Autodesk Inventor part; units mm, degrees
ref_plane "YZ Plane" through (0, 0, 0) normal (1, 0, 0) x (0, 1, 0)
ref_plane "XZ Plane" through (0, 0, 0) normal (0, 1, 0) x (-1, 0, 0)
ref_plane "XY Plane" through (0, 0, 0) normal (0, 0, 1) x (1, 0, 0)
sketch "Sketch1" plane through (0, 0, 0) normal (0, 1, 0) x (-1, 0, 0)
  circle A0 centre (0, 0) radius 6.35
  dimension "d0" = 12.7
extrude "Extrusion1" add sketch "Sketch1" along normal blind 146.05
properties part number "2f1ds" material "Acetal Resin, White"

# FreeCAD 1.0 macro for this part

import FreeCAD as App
import Part
import Sketcher

V = App.Vector
Q = App.Units.Quantity

doc = App.newDocument("Part")
body = doc.addObject("PartDesign::Body", "Body")

sketch1 = body.newObject("Sketcher::SketchObject", "Sketch")
sketch1.AttachmentSupport = (doc.getObject("XZ_Plane"), [""])
sketch1.MapMode = "FlatFace"
sketch1.addGeometry(Part.Circle(V(0, 0, 0), V(0, 0, 1), 6), False)
sketch1.addConstraint([
    Sketcher.Constraint("Coincident", 0, 3, -1, 1),
    Sketcher.Constraint("Diameter", 0, Q("0.5 in")),
])
pad1 = body.newObject("PartDesign::Pad", "Pad")
pad1.Profile = sketch1
pad1.Length = Q("5.75 in")
pad1.Reversed = True

doc.recompute()
